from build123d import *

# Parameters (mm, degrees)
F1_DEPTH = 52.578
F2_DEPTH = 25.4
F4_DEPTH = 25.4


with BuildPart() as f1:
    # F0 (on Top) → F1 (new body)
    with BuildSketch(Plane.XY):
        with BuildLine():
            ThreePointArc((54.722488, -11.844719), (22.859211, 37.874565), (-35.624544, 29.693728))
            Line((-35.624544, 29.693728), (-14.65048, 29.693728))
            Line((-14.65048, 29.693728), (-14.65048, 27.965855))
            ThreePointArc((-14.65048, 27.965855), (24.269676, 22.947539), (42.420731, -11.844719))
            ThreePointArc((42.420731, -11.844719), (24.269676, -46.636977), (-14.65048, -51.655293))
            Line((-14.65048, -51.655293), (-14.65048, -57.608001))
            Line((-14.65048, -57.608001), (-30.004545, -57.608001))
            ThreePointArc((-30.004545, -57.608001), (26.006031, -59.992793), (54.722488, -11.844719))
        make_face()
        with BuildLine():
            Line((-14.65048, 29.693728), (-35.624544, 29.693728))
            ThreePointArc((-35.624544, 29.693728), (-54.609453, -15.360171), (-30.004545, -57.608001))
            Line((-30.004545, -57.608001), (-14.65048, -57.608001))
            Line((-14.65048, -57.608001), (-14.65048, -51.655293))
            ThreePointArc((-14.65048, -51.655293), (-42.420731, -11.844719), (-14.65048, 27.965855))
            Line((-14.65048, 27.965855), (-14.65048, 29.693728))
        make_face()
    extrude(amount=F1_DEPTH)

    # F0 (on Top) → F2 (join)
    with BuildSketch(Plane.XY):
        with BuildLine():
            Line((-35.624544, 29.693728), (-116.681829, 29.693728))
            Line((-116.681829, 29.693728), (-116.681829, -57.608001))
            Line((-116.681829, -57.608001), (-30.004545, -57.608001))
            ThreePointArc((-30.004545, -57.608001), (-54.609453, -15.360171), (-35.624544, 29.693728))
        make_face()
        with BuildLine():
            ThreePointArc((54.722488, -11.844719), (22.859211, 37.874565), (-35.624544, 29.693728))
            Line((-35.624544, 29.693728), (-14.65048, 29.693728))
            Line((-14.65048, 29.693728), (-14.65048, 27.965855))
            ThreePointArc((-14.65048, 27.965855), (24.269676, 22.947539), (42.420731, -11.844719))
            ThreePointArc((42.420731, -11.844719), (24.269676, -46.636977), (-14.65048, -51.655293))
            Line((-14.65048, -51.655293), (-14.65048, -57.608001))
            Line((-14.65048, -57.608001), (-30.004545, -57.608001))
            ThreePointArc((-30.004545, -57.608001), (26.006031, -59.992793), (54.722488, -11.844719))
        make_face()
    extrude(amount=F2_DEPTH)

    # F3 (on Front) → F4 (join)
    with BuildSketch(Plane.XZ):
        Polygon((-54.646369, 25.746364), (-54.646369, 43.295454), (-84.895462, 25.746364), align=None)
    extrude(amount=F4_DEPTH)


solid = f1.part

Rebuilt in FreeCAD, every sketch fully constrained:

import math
import FreeCAD as App
import Part
import Sketcher
Q = App.Units.Quantity


def add_polygon(sketch, points):
    """Adds a closed chain of lines whose ends are joined by coincident constraints."""
    first, n = sketch.GeometryCount, len(points)
    for a, b in zip(points, points[1:] + points[:1]):
        sketch.addGeometry(Part.LineSegment(App.Vector(*a, 0), App.Vector(*b, 0)), False)
    for i in range(n):
        sketch.addConstraint(Sketcher.Constraint("Coincident", first + i, 2, first + (i + 1) % n, 1))

doc = App.newDocument("Part")
body = doc.addObject("PartDesign::Body", "Body")

# Sketch on XY plane
sketch1 = body.newObject("Sketcher::SketchObject", "Sketch")
sketch1.AttachmentSupport = (doc.getObject("XY_Plane"), [""])
sketch1.MapMode = "FlatFace"
sketch1.addGeometry(Part.ArcOfCircle(Part.Circle(App.Vector(0, -12, 0), App.Vector(0, 0, 1), 55), math.radians(0), math.radians(131)), False)
sketch1.addGeometry(Part.ArcOfCircle(Part.Circle(App.Vector(0, -12, 0), App.Vector(0, 0, 1), 55), math.radians(131), math.radians(237)), False)
sketch1.addGeometry(Part.ArcOfCircle(Part.Circle(App.Vector(0, -12, 0), App.Vector(0, 0, 1), 55), math.radians(-123), math.radians(0)), False)
sketch1.addGeometry(Part.ArcOfCircle(Part.Circle(App.Vector(0, -12, 0), App.Vector(0, 0, 1), 42), math.radians(0), math.radians(110)), False)
sketch1.addGeometry(Part.ArcOfCircle(Part.Circle(App.Vector(0, -12, 0), App.Vector(0, 0, 1), 42), math.radians(-110), math.radians(0)), False)
sketch1.addGeometry(Part.ArcOfCircle(Part.Circle(App.Vector(0, -12, 0), App.Vector(0, 0, 1), 42), math.radians(110), math.radians(250)), False)
sketch1.addConstraint(Sketcher.Constraint("Tangent", 0, 2, 1, 1))
sketch1.addConstraint(Sketcher.Constraint("Tangent", 1, 2, 2, 1))
sketch1.addConstraint(Sketcher.Constraint("Tangent", 2, 2, 0, 1))
sketch1.addConstraint(Sketcher.Constraint("Tangent", 3, 1, 4, 2))
sketch1.addConstraint(Sketcher.Constraint("Tangent", 4, 1, 5, 2))
sketch1.addConstraint(Sketcher.Constraint("Tangent", 5, 1, 3, 2))
sketch1.addConstraint(Sketcher.Constraint("Coincident", 3, 3, 0, 3))
sketch1.addConstraint(Sketcher.Constraint("PointOnObject", 0, 3, -2))
sketch1.addConstraint(Sketcher.Constraint("Horizontal", 5, 3, 2, 2))
sketch1.addConstraint(Sketcher.Constraint("Horizontal", 2, 2, 3, 1))
sketch1.addConstraint(Sketcher.Constraint("Vertical", 4, 1, 5, 1))
sketch1.addConstraint(Sketcher.Constraint("Radius", 2, 54.722488))
sketch1.addConstraint(Sketcher.Constraint("Radius", 3, 42.420731))
sketch1.addConstraint(Sketcher.Constraint("DistanceY", 1, 2, -1, 1, 57.608001))
sketch1.addConstraint(Sketcher.Constraint("DistanceY", 0, 3, -1, 1, 11.844719))
sketch1.addConstraint(Sketcher.Constraint("DistanceY", -1, 1, 0, 2, 29.693728))
sketch1.addConstraint(Sketcher.Constraint("DistanceX", 4, 1, -1, 1, 14.65048))
pad1 = body.newObject("PartDesign::Pad", "Pad")
pad1.Profile = sketch1
pad1.Length = Q("2.07 in")

# Sketch on XY plane
sketch2 = body.newObject("Sketcher::SketchObject", "Sketch001")
sketch2.AttachmentSupport = (doc.getObject("XY_Plane"), [""])
sketch2.MapMode = "FlatFace"
sketch2.addGeometry(Part.LineSegment(App.Vector(-35.6, 29.7, 0), App.Vector(-116.7, 29.7, 0)), False)
sketch2.addGeometry(Part.LineSegment(App.Vector(-116.7, 29.7, 0), App.Vector(-116.7, -57.6, 0)), False)
sketch2.addGeometry(Part.LineSegment(App.Vector(-116.7, -57.6, 0), App.Vector(-30, -57.6, 0)), False)
sketch2.addGeometry(Part.ArcOfCircle(Part.Circle(App.Vector(0, -11.8, 0), App.Vector(0, 0, 1), 54.7), math.radians(131), math.radians(237)), False)
sketch2.addGeometry(Part.ArcOfCircle(Part.Circle(App.Vector(0, -11.8, 0), App.Vector(0, 0, 1), 54.7), math.radians(0), math.radians(131)), False)
sketch2.addGeometry(Part.LineSegment(App.Vector(-35.6, 29.7, 0), App.Vector(-14.7, 29.7, 0)), False)
sketch2.addGeometry(Part.LineSegment(App.Vector(-14.7, 29.7, 0), App.Vector(-14.7, 28, 0)), False)
sketch2.addGeometry(Part.ArcOfCircle(Part.Circle(App.Vector(0, -11.8, 0), App.Vector(0, 0, 1), 42.4), math.radians(0), math.radians(110)), False)
sketch2.addGeometry(Part.ArcOfCircle(Part.Circle(App.Vector(0, -11.8, 0), App.Vector(0, 0, 1), 42.4), math.radians(-110), math.radians(0)), False)
sketch2.addGeometry(Part.LineSegment(App.Vector(-14.7, -51.7, 0), App.Vector(-14.7, -57.6, 0)), False)
sketch2.addGeometry(Part.LineSegment(App.Vector(-14.7, -57.6, 0), App.Vector(-30, -57.6, 0)), False)
sketch2.addGeometry(Part.ArcOfCircle(Part.Circle(App.Vector(0, -11.8, 0), App.Vector(0, 0, 1), 54.7), math.radians(-123), math.radians(0)), False)
sketch2.addConstraint(Sketcher.Constraint("Coincident", 0, 2, 1, 1))
sketch2.addConstraint(Sketcher.Constraint("Coincident", 1, 2, 2, 1))
sketch2.addConstraint(Sketcher.Constraint("Coincident", 2, 2, 3, 2))
sketch2.addConstraint(Sketcher.Constraint("Coincident", 3, 1, 0, 1))
sketch2.addConstraint(Sketcher.Constraint("Coincident", 4, 2, 5, 1))
sketch2.addConstraint(Sketcher.Constraint("Coincident", 5, 2, 6, 1))
sketch2.addConstraint(Sketcher.Constraint("Coincident", 6, 2, 7, 2))
sketch2.addConstraint(Sketcher.Constraint("Tangent", 7, 1, 8, 2))
sketch2.addConstraint(Sketcher.Constraint("Coincident", 8, 1, 9, 1))
sketch2.addConstraint(Sketcher.Constraint("Coincident", 9, 2, 10, 1))
sketch2.addConstraint(Sketcher.Constraint("Coincident", 10, 2, 11, 1))
sketch2.addConstraint(Sketcher.Constraint("Tangent", 11, 2, 4, 1))
sketch2.addConstraint(Sketcher.Constraint("Horizontal", 0))
sketch2.addConstraint(Sketcher.Constraint("Vertical", 1))
sketch2.addConstraint(Sketcher.Constraint("Horizontal", 2))
sketch2.addConstraint(Sketcher.Constraint("Horizontal", 5))
sketch2.addConstraint(Sketcher.Constraint("Vertical", 6))
sketch2.addConstraint(Sketcher.Constraint("Vertical", 9))
sketch2.addConstraint(Sketcher.Constraint("Horizontal", 10))
sketch2.addConstraint(Sketcher.Constraint("Coincident", 4, 3, 3, 3))
sketch2.addConstraint(Sketcher.Constraint("Coincident", 7, 3, 3, 3))
sketch2.addConstraint(Sketcher.Constraint("Coincident", 4, 2, 3, 1))
sketch2.addConstraint(Sketcher.Constraint("Coincident", 10, 2, 2, 2))
sketch2.addConstraint(Sketcher.Constraint("Equal", 7, 8))
sketch2.addConstraint(Sketcher.Constraint("PointOnObject", 3, 3, -2))
sketch2.addConstraint(Sketcher.Constraint("Horizontal", 11, 3, 7, 1))
sketch2.addConstraint(Sketcher.Constraint("Horizontal", 7, 1, 11, 2))
sketch2.addConstraint(Sketcher.Constraint("Vertical", 6, 2, 8, 1))
sketch2.addConstraint(Sketcher.Constraint("Radius", 7, 42.420731))
sketch2.addConstraint(Sketcher.Constraint("Radius", 11, 54.722488))
sketch2.addConstraint(Sketcher.Constraint("DistanceY", 1, 2, 1, 1, 87.301729))
sketch2.addConstraint(Sketcher.Constraint("DistanceY", 9, 2, 9, 1, 5.952708))
sketch2.addConstraint(Sketcher.Constraint("DistanceY", 1, 2, -1, 1, 57.608001))
sketch2.addConstraint(Sketcher.Constraint("DistanceX", 0, 2, 0, 1, 81.057285))
sketch2.addConstraint(Sketcher.Constraint("DistanceX", 2, 1, 2, 2, 86.677284))
pad2 = body.newObject("PartDesign::Pad", "Pad001")
pad2.Profile = sketch2
pad2.Length = Q("1 in")

# Sketch on XZ plane
sketch3 = body.newObject("Sketcher::SketchObject", "Sketch002")
sketch3.AttachmentSupport = (doc.getObject("XZ_Plane"), [""])
sketch3.MapMode = "FlatFace"
add_polygon(sketch3, [(-55, 26), (-55, 43), (-85, 26)])  # lines 0-2
sketch3.addConstraint(Sketcher.Constraint("Vertical", 0))
sketch3.addConstraint(Sketcher.Constraint("Horizontal", 2))
sketch3.addConstraint(Sketcher.Constraint("DistanceY", 0, 1, 0, 2, 17.54909))
sketch3.addConstraint(Sketcher.Constraint("DistanceX", 2, 1, 2, 2, 30.249093))
sketch3.addConstraint(Sketcher.Constraint("DistanceX", 0, 2, -1, 1, 54.646369))
sketch3.addConstraint(Sketcher.Constraint("DistanceY", -1, 1, 0, 2, 43.295454))
pad3 = body.newObject("PartDesign::Pad", "Pad002")
pad3.Profile = sketch3
pad3.Length = Q("1 in")

doc.recompute()
